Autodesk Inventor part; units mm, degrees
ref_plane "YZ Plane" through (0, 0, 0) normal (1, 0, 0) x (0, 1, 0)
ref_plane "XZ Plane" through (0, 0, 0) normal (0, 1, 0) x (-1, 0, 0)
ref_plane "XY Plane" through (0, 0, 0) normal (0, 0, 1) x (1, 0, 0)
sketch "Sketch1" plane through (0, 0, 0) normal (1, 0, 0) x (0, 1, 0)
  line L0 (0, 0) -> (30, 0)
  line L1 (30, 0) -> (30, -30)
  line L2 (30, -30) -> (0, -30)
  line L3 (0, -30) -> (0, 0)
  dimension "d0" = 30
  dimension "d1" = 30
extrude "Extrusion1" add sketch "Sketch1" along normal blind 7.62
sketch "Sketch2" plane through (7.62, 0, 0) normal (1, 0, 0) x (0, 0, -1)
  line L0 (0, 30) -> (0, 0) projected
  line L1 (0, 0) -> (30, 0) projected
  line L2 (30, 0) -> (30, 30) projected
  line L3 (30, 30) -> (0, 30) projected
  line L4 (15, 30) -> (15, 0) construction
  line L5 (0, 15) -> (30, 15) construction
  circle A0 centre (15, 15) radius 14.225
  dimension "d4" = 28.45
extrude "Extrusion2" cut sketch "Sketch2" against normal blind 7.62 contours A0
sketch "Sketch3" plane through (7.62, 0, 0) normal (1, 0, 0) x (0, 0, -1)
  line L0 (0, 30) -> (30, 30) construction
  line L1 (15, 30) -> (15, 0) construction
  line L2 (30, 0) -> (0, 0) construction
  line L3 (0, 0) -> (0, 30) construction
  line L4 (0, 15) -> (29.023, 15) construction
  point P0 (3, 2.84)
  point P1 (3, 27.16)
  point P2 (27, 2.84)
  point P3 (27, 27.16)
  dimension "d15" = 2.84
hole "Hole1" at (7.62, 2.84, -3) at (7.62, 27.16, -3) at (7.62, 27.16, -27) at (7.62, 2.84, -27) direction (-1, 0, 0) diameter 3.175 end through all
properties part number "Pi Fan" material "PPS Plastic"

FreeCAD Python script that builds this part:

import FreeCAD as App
import Part
import Sketcher
Q = App.Units.Quantity


def add_polygon(sketch, points):
    """Adds a closed chain of lines whose ends are joined by coincident constraints."""
    first, n = sketch.GeometryCount, len(points)
    for a, b in zip(points, points[1:] + points[:1]):
        sketch.addGeometry(Part.LineSegment(App.Vector(*a, 0), App.Vector(*b, 0)), False)
    for i in range(n):
        sketch.addConstraint(Sketcher.Constraint("Coincident", first + i, 2, first + (i + 1) % n, 1))

doc = App.newDocument("Part")
body = doc.addObject("PartDesign::Body", "Body")

# Sketch on YZ plane
sketch1 = body.newObject("Sketcher::SketchObject", "Sketch")
sketch1.AttachmentSupport = (doc.getObject("YZ_Plane"), [""])
sketch1.MapMode = "FlatFace"
add_polygon(sketch1, [(30, 0), (0, 0), (0, -30), (30, -30)])  # lines 0-3
sketch1.addConstraint([
    Sketcher.Constraint("Horizontal", 0),
    Sketcher.Constraint("Vertical", 1),
    Sketcher.Constraint("Horizontal", 2),
    Sketcher.Constraint("Vertical", 3),
    Sketcher.Constraint("Coincident", 0, 2, -1, 1),
    Sketcher.Constraint("Equal", 2, 1),
    Sketcher.Constraint("DistanceX", 0, 2, 0, 1, Q("1.1811 in")),
])
pad1 = body.newObject("PartDesign::Pad", "Pad")
pad1.Profile = sketch1
pad1.Length = Q("0.3 in")

# Sketch on YZ plane
sketch2 = body.newObject("Sketcher::SketchObject", "Sketch001")
sketch2.AttachmentSupport = (doc.getObject("YZ_Plane"), [""])
sketch2.MapMode = "FlatFace"
sketch2.AttachmentOffset = App.Placement(App.Vector(0, 0, 0.3 * 25.4), App.Rotation())
sketch2.addGeometry(Part.Circle(App.Vector(15, -15, 0), App.Vector(0, 0, 1), 14), False)
sketch2.addConstraint([
    Sketcher.Constraint("Diameter", 0, Q("28.45 mm")),
    Sketcher.Constraint("DistanceX", -1, 1, 0, 3, Q("15 mm")),
    Sketcher.Constraint("DistanceY", 0, 3, -1, 1, Q("15 mm")),
])
pocket1 = body.newObject("PartDesign::Pocket", "Pocket")
pocket1.Profile = sketch2
pocket1.Length = Q("0.3 in")

# Sketch on YZ plane
sketch3 = body.newObject("Sketcher::SketchObject", "Sketch002")
sketch3.AttachmentSupport = (doc.getObject("YZ_Plane"), [""])
sketch3.MapMode = "FlatFace"
sketch3.AttachmentOffset = App.Placement(App.Vector(0, 0, 0.3 * 25.4), App.Rotation())
sketch3.addGeometry([
    Part.Circle(App.Vector(2.8, -3, 0), App.Vector(0, 0, 1), 1.6),
    Part.Circle(App.Vector(27.2, -3, 0), App.Vector(0, 0, 1), 1.6),
    Part.Circle(App.Vector(27.2, -27, 0), App.Vector(0, 0, 1), 1.6),
    Part.Circle(App.Vector(2.8, -27, 0), App.Vector(0, 0, 1), 1.6),
], False)
sketch3.addConstraint([
    Sketcher.Constraint("Equal", 0, 1),
    Sketcher.Constraint("Equal", 1, 2),
    Sketcher.Constraint("Equal", 2, 3),
    Sketcher.Constraint("Horizontal", 0, 3, 1, 3),
    Sketcher.Constraint("Horizontal", 2, 3, 3, 3),
    Sketcher.Constraint("Vertical", 1, 3, 2, 3),
    Sketcher.Constraint("Vertical", 0, 3, 3, 3),
    Sketcher.Constraint("Diameter", 0, Q("0.125 in")),
    Sketcher.Constraint("DistanceY", 2, 3, -1, 1, Q("1.063 in")),
    Sketcher.Constraint("DistanceX", -1, 1, 0, 3, Q("0.1118 in")),
    Sketcher.Constraint("DistanceY", 0, 3, -1, 1, Q("0.1181 in")),
    Sketcher.Constraint("DistanceX", -1, 1, 1, 3, Q("1.0693 in")),
])
doc.recompute()
hole = body.newObject("PartDesign::Hole", "Hole")
hole.Profile = sketch3
hole.ThreadType = "None"
hole.Diameter = Q("0.125 in")
hole.DepthType = "ThroughAll"

doc.recompute()
